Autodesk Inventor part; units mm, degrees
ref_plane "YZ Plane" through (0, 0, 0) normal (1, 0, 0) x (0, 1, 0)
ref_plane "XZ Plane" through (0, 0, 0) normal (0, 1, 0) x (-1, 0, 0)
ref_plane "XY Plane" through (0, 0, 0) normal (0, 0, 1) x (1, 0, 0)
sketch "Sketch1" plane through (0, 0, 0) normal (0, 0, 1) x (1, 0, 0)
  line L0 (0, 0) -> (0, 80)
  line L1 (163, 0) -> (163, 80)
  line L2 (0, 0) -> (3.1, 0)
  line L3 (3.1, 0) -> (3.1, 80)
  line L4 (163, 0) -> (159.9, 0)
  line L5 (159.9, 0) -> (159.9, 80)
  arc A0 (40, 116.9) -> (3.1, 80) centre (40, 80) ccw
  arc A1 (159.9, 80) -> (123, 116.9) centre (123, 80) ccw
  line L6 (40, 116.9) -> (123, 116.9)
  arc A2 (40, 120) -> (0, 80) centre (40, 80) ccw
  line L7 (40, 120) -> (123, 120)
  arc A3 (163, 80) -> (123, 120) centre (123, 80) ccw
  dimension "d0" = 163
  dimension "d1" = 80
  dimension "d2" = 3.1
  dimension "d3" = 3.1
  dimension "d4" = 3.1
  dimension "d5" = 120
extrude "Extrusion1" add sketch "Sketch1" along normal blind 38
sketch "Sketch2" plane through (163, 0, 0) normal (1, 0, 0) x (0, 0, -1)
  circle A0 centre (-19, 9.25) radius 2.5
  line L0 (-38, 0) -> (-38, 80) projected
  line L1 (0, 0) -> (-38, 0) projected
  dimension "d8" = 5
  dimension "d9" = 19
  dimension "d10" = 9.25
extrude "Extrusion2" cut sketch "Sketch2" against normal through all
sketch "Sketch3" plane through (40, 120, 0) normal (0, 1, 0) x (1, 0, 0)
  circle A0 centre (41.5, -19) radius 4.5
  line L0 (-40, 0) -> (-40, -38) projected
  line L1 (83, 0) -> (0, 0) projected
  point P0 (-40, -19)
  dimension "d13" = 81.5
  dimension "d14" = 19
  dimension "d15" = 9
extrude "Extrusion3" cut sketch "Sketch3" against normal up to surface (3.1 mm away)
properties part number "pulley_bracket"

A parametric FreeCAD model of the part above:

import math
import FreeCAD as App
import Part
import Sketcher

V = App.Vector

doc = App.newDocument("Part")
params = doc.addObject("Spreadsheet::Sheet", "Params")
for row, (alias, value) in enumerate([
    ("sketch1_radius", "40 mm"),
    ("sketch1_height", "80 mm"),
    ("sketch1_width", "3.1 mm"),
    ("pad1_length", "38 mm"),
    ("sketch2_diameter", "5 mm"),
    ("sketch3_diameter", "9 mm"),
    ("pocket2_length", "3.1 mm"),
], start=1):
    params.set(f"A{row}", alias)
    params.set(f"B{row}", "=" + value)
    params.setAlias(f"B{row}", alias)

body = doc.addObject("PartDesign::Body", "Body")

# Sketch on XY plane
sketch1 = body.newObject("Sketcher::SketchObject", "Sketch")
sketch1.AttachmentSupport = (doc.getObject("XY_Plane"), [""])
sketch1.MapMode = "FlatFace"
sketch1.addGeometry([
    Part.LineSegment(V(0, 80, 0), V(0, 0, 0)),  # 0
    Part.LineSegment(V(0, 0, 0), V(3.1, 0, 0)),  # 1
    Part.LineSegment(V(3.1, 0, 0), V(3.1, 80, 0)),  # 2
    Part.ArcOfCircle(Part.Circle(V(40, 80, 0), V(0, 0, 1), 36.9), math.radians(90), math.radians(180)),  # 3
    Part.LineSegment(V(40, 116.9, 0), V(123, 116.9, 0)),  # 4
    Part.ArcOfCircle(Part.Circle(V(123, 80, 0), V(0, 0, 1), 36.9), math.radians(0), math.radians(90)),  # 5
    Part.LineSegment(V(159.9, 80, 0), V(159.9, 0, 0)),  # 6
    Part.LineSegment(V(159.9, 0, 0), V(163, 0, 0)),  # 7
    Part.LineSegment(V(163, 0, 0), V(163, 80, 0)),  # 8
    Part.ArcOfCircle(Part.Circle(V(123, 80, 0), V(0, 0, 1), 40), math.radians(0), math.radians(90)),  # 9
    Part.LineSegment(V(123, 120, 0), V(40, 120, 0)),  # 10
    Part.ArcOfCircle(Part.Circle(V(40, 80, 0), V(0, 0, 1), 40), math.radians(90), math.radians(180)),  # 11
], False)
sketch1.addConstraint([
    Sketcher.Constraint("Coincident", 0, 2, 1, 1),
    Sketcher.Constraint("Coincident", 1, 2, 2, 1),
    Sketcher.Constraint("Tangent", 2, 2, 3, 2),
    Sketcher.Constraint("Tangent", 3, 1, 4, 1),
    Sketcher.Constraint("Tangent", 4, 2, 5, 2),
    Sketcher.Constraint("Tangent", 5, 1, 6, 1),
    Sketcher.Constraint("Coincident", 6, 2, 7, 1),
    Sketcher.Constraint("Coincident", 7, 2, 8, 1),
    Sketcher.Constraint("Tangent", 8, 2, 9, 1),
    Sketcher.Constraint("Tangent", 9, 2, 10, 1),
    Sketcher.Constraint("Tangent", 10, 2, 11, 1),
    Sketcher.Constraint("Tangent", 11, 2, 0, 1),
    Sketcher.Constraint("Vertical", 0),
    Sketcher.Constraint("Horizontal", 1),
    Sketcher.Constraint("Vertical", 2),
    Sketcher.Constraint("Horizontal", 4),
    Sketcher.Constraint("Vertical", 6),
    Sketcher.Constraint("Horizontal", 7),
    Sketcher.Constraint("Vertical", 8),
    Sketcher.Constraint("Horizontal", 10),
    Sketcher.Constraint("Coincident", 0, 2, -1, 1),
    Sketcher.Constraint("Coincident", 9, 3, 5, 3),
    Sketcher.Constraint("Coincident", 11, 3, 3, 3),
    Sketcher.Constraint("Equal", 3, 5),
    Sketcher.Constraint("PointOnObject", 6, 2, -1),
    Sketcher.Constraint("Radius", 9, 40.0),
    Sketcher.Constraint("DistanceY", 0, 2, 0, 1, 80.0),
    Sketcher.Constraint("DistanceX", 1, 1, 1, 2, 3.1),
    Sketcher.Constraint("DistanceX", -1, 1, 7, 2, 163.0),
])
sketch1.setExpression("Constraints[25]", "Params.sketch1_radius")
sketch1.setExpression("Constraints[26]", "Params.sketch1_height")
sketch1.setExpression("Constraints[27]", "Params.sketch1_width")
pad1 = body.newObject("PartDesign::Pad", "Pad")
pad1.Profile = sketch1
pad1.setExpression("Length", "Params.pad1_length")

# Sketch on YZ plane
sketch2 = body.newObject("Sketcher::SketchObject", "Sketch001")
sketch2.AttachmentSupport = (doc.getObject("YZ_Plane"), [""])
sketch2.MapMode = "FlatFace"
sketch2.AttachmentOffset = App.Placement(V(0, 0, 163), App.Rotation())
sketch2.addGeometry(Part.Circle(V(9.25, 19, 0), V(0, 0, 1), 2.5), False)
sketch2.addConstraint([
    Sketcher.Constraint("Diameter", 0, 5.0),
    Sketcher.Constraint("DistanceY", -1, 1, 0, 3, 19.0),
    Sketcher.Constraint("DistanceX", -1, 1, 0, 3, 9.25),
])
sketch2.setExpression("Constraints[0]", "Params.sketch2_diameter")
pocket1 = body.newObject("PartDesign::Pocket", "Pocket")
pocket1.Profile = sketch2
pocket1.Type = "ThroughAll"

# Sketch on XZ plane
sketch3 = body.newObject("Sketcher::SketchObject", "Sketch002")
sketch3.AttachmentSupport = (doc.getObject("XZ_Plane"), [""])
sketch3.MapMode = "FlatFace"
sketch3.AttachmentOffset = App.Placement(V(0, 0, -120), App.Rotation())
sketch3.addGeometry(Part.Circle(V(81.5, 19, 0), V(0, 0, 1), 4.5), False)
sketch3.addConstraint([
    Sketcher.Constraint("Diameter", 0, 9.0),
    Sketcher.Constraint("DistanceY", -1, 1, 0, 3, 19.0),
    Sketcher.Constraint("DistanceX", -1, 1, 0, 3, 81.5),
])
sketch3.setExpression("Constraints[0]", "Params.sketch3_diameter")
pocket2 = body.newObject("PartDesign::Pocket", "Pocket001")
pocket2.Profile = sketch3
pocket2.setExpression("Length", "Params.pocket2_length")
pocket2.Reversed = True

doc.recompute()
